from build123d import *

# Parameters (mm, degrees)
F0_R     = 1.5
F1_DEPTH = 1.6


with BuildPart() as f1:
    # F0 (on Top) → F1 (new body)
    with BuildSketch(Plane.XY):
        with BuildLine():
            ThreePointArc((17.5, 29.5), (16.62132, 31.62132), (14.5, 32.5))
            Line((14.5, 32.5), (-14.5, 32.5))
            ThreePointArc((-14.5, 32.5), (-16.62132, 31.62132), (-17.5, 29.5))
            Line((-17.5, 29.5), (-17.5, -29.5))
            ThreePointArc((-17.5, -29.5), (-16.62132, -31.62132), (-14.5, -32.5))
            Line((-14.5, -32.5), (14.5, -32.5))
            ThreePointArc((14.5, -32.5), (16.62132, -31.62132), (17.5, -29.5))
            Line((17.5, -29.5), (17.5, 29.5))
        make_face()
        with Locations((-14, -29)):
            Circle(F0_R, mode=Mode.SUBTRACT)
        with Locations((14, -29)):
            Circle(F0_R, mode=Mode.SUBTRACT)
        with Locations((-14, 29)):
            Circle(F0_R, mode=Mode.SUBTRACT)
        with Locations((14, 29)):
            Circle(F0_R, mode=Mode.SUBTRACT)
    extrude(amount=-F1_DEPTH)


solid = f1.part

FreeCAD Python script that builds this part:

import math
import FreeCAD as App
import Part
import Sketcher

doc = App.newDocument("Part")
body = doc.addObject("PartDesign::Body", "Body")

sketch1 = doc.addObject("Sketcher::SketchObject", "Sketch")
body.addObject(sketch1)
sketch1.AttachmentSupport = (doc.XY_Plane, [""])
sketch1.MapMode = "FlatFace"
sketch1.addGeometry([
    Part.ArcOfCircle(Part.Circle(App.Vector(14.5, 29.5, 0), App.Vector(0, 0, 1), 3), math.radians(0), math.radians(90)),
    Part.LineSegment(App.Vector(14.5, 32.5, 0), App.Vector(-14.5, 32.5, 0)),
    Part.ArcOfCircle(Part.Circle(App.Vector(-14.5, 29.5, 0), App.Vector(0, 0, 1), 3), math.radians(90), math.radians(180)),
    Part.LineSegment(App.Vector(-17.5, 29.5, 0), App.Vector(-17.5, -29.5, 0)),
    Part.ArcOfCircle(Part.Circle(App.Vector(-14.5, -29.5, 0), App.Vector(0, 0, 1), 3), math.radians(-180), math.radians(-90)),
    Part.LineSegment(App.Vector(-14.5, -32.5, 0), App.Vector(14.5, -32.5, 0)),
    Part.ArcOfCircle(Part.Circle(App.Vector(14.5, -29.5, 0), App.Vector(0, 0, 1), 3), math.radians(-90), math.radians(0)),
    Part.LineSegment(App.Vector(17.5, -29.5, 0), App.Vector(17.5, 29.5, 0)),
    Part.Circle(App.Vector(-14, -29, 0), App.Vector(0, 0, 1), 1.5),
    Part.Circle(App.Vector(14, -29, 0), App.Vector(0, 0, 1), 1.5),
    Part.Circle(App.Vector(-14, 29, 0), App.Vector(0, 0, 1), 1.5),
    Part.Circle(App.Vector(14, 29, 0), App.Vector(0, 0, 1), 1.5),
], False)
sketch1.addConstraint([
    Sketcher.Constraint("Tangent", 0, 2, 1, 1),
    Sketcher.Constraint("Tangent", 1, 2, 2, 1),
    Sketcher.Constraint("Tangent", 2, 2, 3, 1),
    Sketcher.Constraint("Tangent", 3, 2, 4, 1),
    Sketcher.Constraint("Tangent", 4, 2, 5, 1),
    Sketcher.Constraint("Tangent", 5, 2, 6, 1),
    Sketcher.Constraint("Tangent", 6, 2, 7, 1),
    Sketcher.Constraint("Tangent", 7, 2, 0, 1),
    Sketcher.Constraint("Horizontal", 1),
    Sketcher.Constraint("Vertical", 3),
    Sketcher.Constraint("Horizontal", 5),
    Sketcher.Constraint("Vertical", 7),
    Sketcher.Constraint("Equal", 0, 2),
    Sketcher.Constraint("Equal", 2, 4),
    Sketcher.Constraint("Equal", 4, 6),
    Sketcher.Constraint("Equal", 8, 9),
    Sketcher.Constraint("Equal", 9, 10),
    Sketcher.Constraint("Equal", 10, 11),
    Sketcher.Constraint("Symmetric", 0, 3, 4, 3, -1, 1),
    Sketcher.Constraint("Symmetric", 9, 3, 10, 3, -1, 1),
    Sketcher.Constraint("Symmetric", 8, 3, 11, 3, -1, 1),
    Sketcher.Constraint("Symmetric", 8, 3, 9, 3, -2),
    Sketcher.Constraint("Diameter", 8, 3.0),
    Sketcher.Constraint("Radius", 0, 3.000001),
    Sketcher.Constraint("DistanceX", 1, 2, 1, 1, 29.0),
    Sketcher.Constraint("DistanceY", 3, 2, 3, 1, 59.0),
    Sketcher.Constraint("DistanceX", 8, 3, -1, 1, 14.0),
    Sketcher.Constraint("DistanceY", 8, 3, -1, 1, 29.0),
])
pad1 = doc.addObject("PartDesign::Pad", "Pad")
body.addObject(pad1)
pad1.Profile = sketch1
pad1.Length = 1.6
pad1.Reversed = True

doc.recompute()
